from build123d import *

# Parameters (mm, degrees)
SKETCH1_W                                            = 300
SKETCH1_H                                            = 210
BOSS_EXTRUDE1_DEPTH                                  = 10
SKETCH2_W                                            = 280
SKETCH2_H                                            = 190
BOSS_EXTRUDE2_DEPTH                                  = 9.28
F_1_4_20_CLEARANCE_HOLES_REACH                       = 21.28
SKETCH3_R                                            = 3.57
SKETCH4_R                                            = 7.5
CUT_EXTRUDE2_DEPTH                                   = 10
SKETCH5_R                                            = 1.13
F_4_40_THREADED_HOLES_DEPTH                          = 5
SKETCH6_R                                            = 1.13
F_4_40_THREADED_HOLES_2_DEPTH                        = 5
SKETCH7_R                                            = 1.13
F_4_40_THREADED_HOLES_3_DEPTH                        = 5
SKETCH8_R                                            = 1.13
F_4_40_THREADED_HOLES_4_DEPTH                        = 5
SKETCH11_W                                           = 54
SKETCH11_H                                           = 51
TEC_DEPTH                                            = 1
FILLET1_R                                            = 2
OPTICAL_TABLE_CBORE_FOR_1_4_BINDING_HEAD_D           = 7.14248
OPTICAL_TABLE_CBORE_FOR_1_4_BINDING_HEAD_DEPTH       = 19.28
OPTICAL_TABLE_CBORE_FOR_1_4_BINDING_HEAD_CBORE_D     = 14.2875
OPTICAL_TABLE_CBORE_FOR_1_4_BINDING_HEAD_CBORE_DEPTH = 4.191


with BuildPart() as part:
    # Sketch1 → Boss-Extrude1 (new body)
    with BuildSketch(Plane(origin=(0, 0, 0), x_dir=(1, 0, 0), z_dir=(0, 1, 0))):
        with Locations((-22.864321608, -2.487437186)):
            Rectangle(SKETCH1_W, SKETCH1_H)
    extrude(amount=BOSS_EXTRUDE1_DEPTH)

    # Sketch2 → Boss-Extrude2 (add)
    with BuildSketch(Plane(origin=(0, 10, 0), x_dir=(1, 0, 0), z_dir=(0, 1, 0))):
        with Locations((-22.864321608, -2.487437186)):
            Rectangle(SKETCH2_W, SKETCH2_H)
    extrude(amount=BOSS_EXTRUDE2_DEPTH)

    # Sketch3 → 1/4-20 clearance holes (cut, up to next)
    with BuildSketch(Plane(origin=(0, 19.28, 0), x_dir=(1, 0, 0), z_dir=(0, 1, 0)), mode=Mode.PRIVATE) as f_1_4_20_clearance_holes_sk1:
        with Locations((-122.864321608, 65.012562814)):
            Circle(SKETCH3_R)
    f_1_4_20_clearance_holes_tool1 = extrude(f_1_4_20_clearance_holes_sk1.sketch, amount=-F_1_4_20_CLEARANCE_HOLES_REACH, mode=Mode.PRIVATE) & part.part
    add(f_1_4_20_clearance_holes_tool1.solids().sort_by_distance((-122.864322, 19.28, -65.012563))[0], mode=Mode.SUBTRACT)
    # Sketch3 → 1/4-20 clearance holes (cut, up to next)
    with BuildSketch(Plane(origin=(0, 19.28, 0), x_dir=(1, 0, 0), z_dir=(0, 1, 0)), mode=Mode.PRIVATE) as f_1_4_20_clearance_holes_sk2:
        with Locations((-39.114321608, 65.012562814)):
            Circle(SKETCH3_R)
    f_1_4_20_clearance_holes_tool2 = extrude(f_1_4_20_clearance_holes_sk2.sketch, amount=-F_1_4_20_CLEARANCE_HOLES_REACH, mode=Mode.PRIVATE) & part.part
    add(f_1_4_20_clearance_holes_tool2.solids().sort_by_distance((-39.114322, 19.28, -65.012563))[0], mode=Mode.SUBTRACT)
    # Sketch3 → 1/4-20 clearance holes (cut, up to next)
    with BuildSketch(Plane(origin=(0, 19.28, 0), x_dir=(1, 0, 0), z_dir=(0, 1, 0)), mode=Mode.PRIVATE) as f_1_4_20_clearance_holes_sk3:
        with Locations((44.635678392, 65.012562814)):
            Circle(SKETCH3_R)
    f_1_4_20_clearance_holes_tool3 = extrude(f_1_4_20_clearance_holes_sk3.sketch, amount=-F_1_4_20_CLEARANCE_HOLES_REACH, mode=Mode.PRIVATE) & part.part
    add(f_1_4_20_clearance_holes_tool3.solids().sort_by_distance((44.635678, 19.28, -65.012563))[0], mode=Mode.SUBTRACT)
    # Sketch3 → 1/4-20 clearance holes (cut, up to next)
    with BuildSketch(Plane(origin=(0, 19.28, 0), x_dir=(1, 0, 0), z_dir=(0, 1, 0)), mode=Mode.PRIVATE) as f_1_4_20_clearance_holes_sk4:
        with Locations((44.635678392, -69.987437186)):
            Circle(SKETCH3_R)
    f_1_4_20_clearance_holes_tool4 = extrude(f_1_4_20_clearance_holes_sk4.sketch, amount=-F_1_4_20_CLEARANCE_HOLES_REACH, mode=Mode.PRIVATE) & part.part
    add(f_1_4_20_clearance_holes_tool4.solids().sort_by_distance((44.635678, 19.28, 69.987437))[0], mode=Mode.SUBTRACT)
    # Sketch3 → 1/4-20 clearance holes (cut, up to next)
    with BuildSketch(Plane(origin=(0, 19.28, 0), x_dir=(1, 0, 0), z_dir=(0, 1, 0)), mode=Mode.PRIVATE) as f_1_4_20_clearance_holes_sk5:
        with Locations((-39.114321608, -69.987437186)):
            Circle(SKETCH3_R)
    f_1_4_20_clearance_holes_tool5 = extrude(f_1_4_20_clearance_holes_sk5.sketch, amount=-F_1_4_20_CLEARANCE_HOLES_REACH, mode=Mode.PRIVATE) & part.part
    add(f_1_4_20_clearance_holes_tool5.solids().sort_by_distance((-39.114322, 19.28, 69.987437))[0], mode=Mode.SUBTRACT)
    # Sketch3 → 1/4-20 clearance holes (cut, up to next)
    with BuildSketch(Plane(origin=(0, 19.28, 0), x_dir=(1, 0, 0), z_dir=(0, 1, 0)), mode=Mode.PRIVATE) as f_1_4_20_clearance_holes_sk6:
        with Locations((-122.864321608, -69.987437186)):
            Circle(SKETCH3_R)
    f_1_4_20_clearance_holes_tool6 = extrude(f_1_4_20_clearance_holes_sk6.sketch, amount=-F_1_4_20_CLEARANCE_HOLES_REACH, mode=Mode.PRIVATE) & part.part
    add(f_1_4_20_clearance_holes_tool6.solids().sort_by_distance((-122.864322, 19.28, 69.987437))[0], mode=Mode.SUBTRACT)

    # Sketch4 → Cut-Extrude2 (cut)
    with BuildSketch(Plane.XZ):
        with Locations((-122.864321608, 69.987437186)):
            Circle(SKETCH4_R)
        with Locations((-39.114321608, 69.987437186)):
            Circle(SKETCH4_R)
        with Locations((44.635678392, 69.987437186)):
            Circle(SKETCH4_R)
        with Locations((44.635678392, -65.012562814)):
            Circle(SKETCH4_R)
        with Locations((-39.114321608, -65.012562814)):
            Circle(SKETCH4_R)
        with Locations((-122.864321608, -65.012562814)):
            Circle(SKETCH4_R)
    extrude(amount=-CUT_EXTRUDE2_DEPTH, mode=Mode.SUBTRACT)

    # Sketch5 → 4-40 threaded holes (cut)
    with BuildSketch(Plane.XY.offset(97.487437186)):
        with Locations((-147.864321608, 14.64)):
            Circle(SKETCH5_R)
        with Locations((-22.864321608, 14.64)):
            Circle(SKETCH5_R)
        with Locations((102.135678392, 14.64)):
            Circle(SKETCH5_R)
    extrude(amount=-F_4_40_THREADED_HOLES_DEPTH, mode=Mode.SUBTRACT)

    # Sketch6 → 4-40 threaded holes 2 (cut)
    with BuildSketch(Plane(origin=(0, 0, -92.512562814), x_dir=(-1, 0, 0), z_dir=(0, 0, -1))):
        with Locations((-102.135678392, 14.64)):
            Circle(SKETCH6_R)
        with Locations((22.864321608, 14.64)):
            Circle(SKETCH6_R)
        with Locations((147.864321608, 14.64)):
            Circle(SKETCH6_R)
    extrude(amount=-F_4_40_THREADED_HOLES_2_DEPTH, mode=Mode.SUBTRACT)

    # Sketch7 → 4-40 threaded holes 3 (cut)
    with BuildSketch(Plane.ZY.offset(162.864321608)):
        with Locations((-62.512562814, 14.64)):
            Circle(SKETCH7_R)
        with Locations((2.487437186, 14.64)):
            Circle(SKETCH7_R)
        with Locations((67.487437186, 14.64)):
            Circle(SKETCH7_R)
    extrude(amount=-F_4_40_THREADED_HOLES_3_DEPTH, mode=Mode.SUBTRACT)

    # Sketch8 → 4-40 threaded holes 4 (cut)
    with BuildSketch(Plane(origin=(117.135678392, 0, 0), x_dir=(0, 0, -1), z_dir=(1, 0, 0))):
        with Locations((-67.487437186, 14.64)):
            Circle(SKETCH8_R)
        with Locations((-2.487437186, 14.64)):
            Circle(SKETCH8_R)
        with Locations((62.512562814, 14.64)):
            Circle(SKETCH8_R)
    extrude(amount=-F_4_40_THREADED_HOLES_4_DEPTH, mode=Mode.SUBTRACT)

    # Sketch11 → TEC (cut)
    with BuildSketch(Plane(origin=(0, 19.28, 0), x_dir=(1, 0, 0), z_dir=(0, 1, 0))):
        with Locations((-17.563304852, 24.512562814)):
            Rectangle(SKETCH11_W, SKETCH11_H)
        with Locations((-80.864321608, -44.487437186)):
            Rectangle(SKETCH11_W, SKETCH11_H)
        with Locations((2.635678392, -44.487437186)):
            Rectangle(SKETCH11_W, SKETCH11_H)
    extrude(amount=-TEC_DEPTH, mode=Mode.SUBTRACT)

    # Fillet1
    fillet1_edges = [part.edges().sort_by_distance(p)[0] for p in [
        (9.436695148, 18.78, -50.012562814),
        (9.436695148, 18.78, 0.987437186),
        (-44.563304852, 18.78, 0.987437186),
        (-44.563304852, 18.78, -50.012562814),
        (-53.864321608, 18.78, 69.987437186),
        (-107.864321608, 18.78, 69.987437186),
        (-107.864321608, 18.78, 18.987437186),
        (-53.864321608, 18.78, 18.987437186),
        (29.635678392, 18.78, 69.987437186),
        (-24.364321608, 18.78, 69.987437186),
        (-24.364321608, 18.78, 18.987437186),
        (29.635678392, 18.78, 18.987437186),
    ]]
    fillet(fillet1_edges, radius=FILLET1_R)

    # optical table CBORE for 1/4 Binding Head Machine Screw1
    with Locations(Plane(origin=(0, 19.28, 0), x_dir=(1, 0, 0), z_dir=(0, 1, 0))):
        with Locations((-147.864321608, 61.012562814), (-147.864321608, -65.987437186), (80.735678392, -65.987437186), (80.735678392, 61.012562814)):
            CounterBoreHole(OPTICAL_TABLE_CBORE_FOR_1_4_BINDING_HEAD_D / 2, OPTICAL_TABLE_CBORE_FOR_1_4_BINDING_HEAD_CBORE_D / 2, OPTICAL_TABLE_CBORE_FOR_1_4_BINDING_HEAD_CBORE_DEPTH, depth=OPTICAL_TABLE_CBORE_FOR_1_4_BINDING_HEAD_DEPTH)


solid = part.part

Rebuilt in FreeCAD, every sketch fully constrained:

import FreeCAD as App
import Part
import Sketcher
from FreeCAD import Vector


def edges_at(feature, points):
    """Names of the edges that pass closest to the given points."""
    edges = feature.Shape.Edges
    near = lambda p: min(range(len(edges)), key=lambda i: edges[i].distToShape(Part.Vertex(*p))[0])
    return sorted({f"Edge{near(p) + 1}" for p in points})


def add_polygon(sketch, points):
    """Adds a closed chain of lines whose ends are joined by coincident constraints."""
    first, n = sketch.GeometryCount, len(points)
    for a, b in zip(points, points[1:] + points[:1]):
        sketch.addGeometry(Part.LineSegment(App.Vector(*a, 0), App.Vector(*b, 0)), False)
    for i in range(n):
        sketch.addConstraint(Sketcher.Constraint("Coincident", first + i, 2, first + (i + 1) % n, 1))

doc = App.newDocument("Part")
params = doc.addObject("Spreadsheet::Sheet", "Params")
for row, (alias, value) in enumerate([
    ("sketch1_width", "300 mm"),
    ("sketch1_height", "210 mm"),
    ("pad1_length", "10 mm"),
    ("sketch2_width", "280 mm"),
    ("sketch2_height", "190 mm"),
    ("pad2_length", "9.28 mm"),
    ("sketch3_diameter", "7.14 mm"),
    ("sketch4_diameter", "7.14 mm"),
    ("sketch5_diameter", "7.14 mm"),
    ("sketch6_diameter", "7.14 mm"),
    ("sketch7_diameter", "7.14 mm"),
    ("sketch8_diameter", "7.14 mm"),
    ("sketch9_diameter", "15 mm"),
    ("pocket7_length", "10 mm"),
    ("sketch10_diameter", "2.26 mm"),
    ("pocket8_length", "5 mm"),
    ("sketch11_diameter", "2.26 mm"),
    ("pocket9_length", "5 mm"),
    ("sketch12_diameter", "2.26 mm"),
    ("pocket10_length", "5 mm"),
    ("sketch13_diameter", "2.26 mm"),
    ("pocket11_length", "5 mm"),
    ("sketch14_width", "54 mm"),
    ("sketch14_height", "51 mm"),
    ("pocket12_length", "1 mm"),
    ("fillet_radius", "2 mm"),
    ("hole_diameter", "7.14248 mm"),
    ("hole_depth", "19.28 mm"),
    ("hole_cbore_diameter", "14.2875 mm"),
    ("hole_cbore_depth", "4.191 mm"),
], start=1):
    params.set(f"A{row}", alias)
    params.set(f"B{row}", "=" + value)
    params.setAlias(f"B{row}", alias)

body = doc.addObject("PartDesign::Body", "Body")

# Sketch on XZ plane
sketch1 = body.newObject("Sketcher::SketchObject", "Sketch")
sketch1.AttachmentSupport = (doc.getObject("XZ_Plane"), [""])
sketch1.MapMode = "FlatFace"
add_polygon(sketch1, [(-173, -103), (-173, 107), (127, 107), (127, -103)])  # lines 0-3
sketch1.addConstraint(Sketcher.Constraint("Vertical", 0))
sketch1.addConstraint(Sketcher.Constraint("Horizontal", 1))
sketch1.addConstraint(Sketcher.Constraint("Vertical", 2))
sketch1.addConstraint(Sketcher.Constraint("Horizontal", 3))
sketch1.addConstraint(Sketcher.Constraint("DistanceX", 1, 1, 1, 2, 300.0))
sketch1.addConstraint(Sketcher.Constraint("DistanceY", 0, 1, 0, 2, 210.0))
sketch1.addConstraint(Sketcher.Constraint("DistanceX", 0, 2, -1, 1, 172.864322))
sketch1.addConstraint(Sketcher.Constraint("DistanceY", -1, 1, 0, 2, 107.487437))
sketch1.setExpression("Constraints[8]", "Params.sketch1_width")
sketch1.setExpression("Constraints[9]", "Params.sketch1_height")
pad1 = body.newObject("PartDesign::Pad", "Pad")
pad1.Profile = sketch1
pad1.setExpression("Length", "Params.pad1_length")
pad1.Reversed = True

# Sketch on XZ plane
sketch2 = body.newObject("Sketcher::SketchObject", "Sketch001")
sketch2.AttachmentSupport = (doc.getObject("XZ_Plane"), [""])
sketch2.MapMode = "FlatFace"
sketch2.AttachmentOffset = App.Placement(Vector(0, 0, -10), App.Rotation())
add_polygon(sketch2, [(-163, -93), (-163, 97), (117, 97), (117, -93)])  # lines 0-3
sketch2.addConstraint(Sketcher.Constraint("Vertical", 0))
sketch2.addConstraint(Sketcher.Constraint("Horizontal", 1))
sketch2.addConstraint(Sketcher.Constraint("Vertical", 2))
sketch2.addConstraint(Sketcher.Constraint("Horizontal", 3))
sketch2.addConstraint(Sketcher.Constraint("DistanceX", 1, 1, 1, 2, 280.0))
sketch2.addConstraint(Sketcher.Constraint("DistanceY", 0, 1, 0, 2, 190.0))
sketch2.addConstraint(Sketcher.Constraint("DistanceX", 0, 2, -1, 1, 162.864322))
sketch2.addConstraint(Sketcher.Constraint("DistanceY", -1, 1, 0, 2, 97.487437))
sketch2.setExpression("Constraints[8]", "Params.sketch2_width")
sketch2.setExpression("Constraints[9]", "Params.sketch2_height")
pad2 = body.newObject("PartDesign::Pad", "Pad001")
pad2.Profile = sketch2
pad2.setExpression("Length", "Params.pad2_length")
pad2.Reversed = True

# Sketch on XZ plane
sketch3 = body.newObject("Sketcher::SketchObject", "Sketch002")
sketch3.AttachmentSupport = (doc.getObject("XZ_Plane"), [""])
sketch3.MapMode = "FlatFace"
sketch3.AttachmentOffset = App.Placement(Vector(0, 0, -19.28), App.Rotation())
sketch3.addGeometry(Part.Circle(Vector(-122.9, -65, 0), Vector(0, 0, 1), 3.6), False)
sketch3.addConstraint(Sketcher.Constraint("Diameter", 0, 7.14))
sketch3.addConstraint(Sketcher.Constraint("DistanceX", 0, 3, -1, 1, 122.864322))
sketch3.addConstraint(Sketcher.Constraint("DistanceY", 0, 3, -1, 1, 65.012563))
sketch3.setExpression("Constraints[0]", "Params.sketch3_diameter")
pocket1 = body.newObject("PartDesign::Pocket", "Pocket")
pocket1.Profile = sketch3
pocket1.Type = "UpToFirst"
pocket1.Reversed = True

# Sketch on XZ plane
sketch4 = body.newObject("Sketcher::SketchObject", "Sketch003")
sketch4.AttachmentSupport = (doc.getObject("XZ_Plane"), [""])
sketch4.MapMode = "FlatFace"
sketch4.AttachmentOffset = App.Placement(Vector(0, 0, -19.28), App.Rotation())
sketch4.addGeometry(Part.Circle(Vector(-39.1, -65, 0), Vector(0, 0, 1), 3.6), False)
sketch4.addConstraint(Sketcher.Constraint("Diameter", 0, 7.14))
sketch4.addConstraint(Sketcher.Constraint("DistanceX", 0, 3, -1, 1, 39.114322))
sketch4.addConstraint(Sketcher.Constraint("DistanceY", 0, 3, -1, 1, 65.012563))
sketch4.setExpression("Constraints[0]", "Params.sketch4_diameter")
pocket2 = body.newObject("PartDesign::Pocket", "Pocket001")
pocket2.Profile = sketch4
pocket2.Type = "UpToFirst"
pocket2.Reversed = True

# Sketch on XZ plane
sketch5 = body.newObject("Sketcher::SketchObject", "Sketch004")
sketch5.AttachmentSupport = (doc.getObject("XZ_Plane"), [""])
sketch5.MapMode = "FlatFace"
sketch5.AttachmentOffset = App.Placement(Vector(0, 0, -19.28), App.Rotation())
sketch5.addGeometry(Part.Circle(Vector(44.6, -65, 0), Vector(0, 0, 1), 3.6), False)
sketch5.addConstraint(Sketcher.Constraint("Diameter", 0, 7.14))
sketch5.addConstraint(Sketcher.Constraint("DistanceX", -1, 1, 0, 3, 44.635678))
sketch5.addConstraint(Sketcher.Constraint("DistanceY", 0, 3, -1, 1, 65.012563))
sketch5.setExpression("Constraints[0]", "Params.sketch5_diameter")
pocket3 = body.newObject("PartDesign::Pocket", "Pocket002")
pocket3.Profile = sketch5
pocket3.Type = "UpToFirst"
pocket3.Reversed = True

# Sketch on XZ plane
sketch6 = body.newObject("Sketcher::SketchObject", "Sketch005")
sketch6.AttachmentSupport = (doc.getObject("XZ_Plane"), [""])
sketch6.MapMode = "FlatFace"
sketch6.AttachmentOffset = App.Placement(Vector(0, 0, -19.28), App.Rotation())
sketch6.addGeometry(Part.Circle(Vector(44.6, 70, 0), Vector(0, 0, 1), 3.6), False)
sketch6.addConstraint(Sketcher.Constraint("Diameter", 0, 7.14))
sketch6.addConstraint(Sketcher.Constraint("DistanceX", -1, 1, 0, 3, 44.635678))
sketch6.addConstraint(Sketcher.Constraint("DistanceY", -1, 1, 0, 3, 69.987437))
sketch6.setExpression("Constraints[0]", "Params.sketch6_diameter")
pocket4 = body.newObject("PartDesign::Pocket", "Pocket003")
pocket4.Profile = sketch6
pocket4.Type = "UpToFirst"
pocket4.Reversed = True

# Sketch on XZ plane
sketch7 = body.newObject("Sketcher::SketchObject", "Sketch006")
sketch7.AttachmentSupport = (doc.getObject("XZ_Plane"), [""])
sketch7.MapMode = "FlatFace"
sketch7.AttachmentOffset = App.Placement(Vector(0, 0, -19.28), App.Rotation())
sketch7.addGeometry(Part.Circle(Vector(-39.1, 70, 0), Vector(0, 0, 1), 3.6), False)
sketch7.addConstraint(Sketcher.Constraint("Diameter", 0, 7.14))
sketch7.addConstraint(Sketcher.Constraint("DistanceX", 0, 3, -1, 1, 39.114322))
sketch7.addConstraint(Sketcher.Constraint("DistanceY", -1, 1, 0, 3, 69.987437))
sketch7.setExpression("Constraints[0]", "Params.sketch7_diameter")
pocket5 = body.newObject("PartDesign::Pocket", "Pocket004")
pocket5.Profile = sketch7
pocket5.Type = "UpToFirst"
pocket5.Reversed = True

# Sketch on XZ plane
sketch8 = body.newObject("Sketcher::SketchObject", "Sketch007")
sketch8.AttachmentSupport = (doc.getObject("XZ_Plane"), [""])
sketch8.MapMode = "FlatFace"
sketch8.AttachmentOffset = App.Placement(Vector(0, 0, -19.28), App.Rotation())
sketch8.addGeometry(Part.Circle(Vector(-122.9, 70, 0), Vector(0, 0, 1), 3.6), False)
sketch8.addConstraint(Sketcher.Constraint("Diameter", 0, 7.14))
sketch8.addConstraint(Sketcher.Constraint("DistanceX", 0, 3, -1, 1, 122.864322))
sketch8.addConstraint(Sketcher.Constraint("DistanceY", -1, 1, 0, 3, 69.987437))
sketch8.setExpression("Constraints[0]", "Params.sketch8_diameter")
pocket6 = body.newObject("PartDesign::Pocket", "Pocket005")
pocket6.Profile = sketch8
pocket6.Type = "UpToFirst"
pocket6.Reversed = True

# Sketch on XZ plane
sketch9 = body.newObject("Sketcher::SketchObject", "Sketch008")
sketch9.AttachmentSupport = (doc.getObject("XZ_Plane"), [""])
sketch9.MapMode = "FlatFace"
sketch9.addGeometry(Part.Circle(Vector(-123, 70, 0), Vector(0, 0, 1), 8), False)
sketch9.addGeometry(Part.Circle(Vector(-39, 70, 0), Vector(0, 0, 1), 8), False)
sketch9.addGeometry(Part.Circle(Vector(45, 70, 0), Vector(0, 0, 1), 8), False)
sketch9.addGeometry(Part.Circle(Vector(45, -65, 0), Vector(0, 0, 1), 8), False)
sketch9.addGeometry(Part.Circle(Vector(-39, -65, 0), Vector(0, 0, 1), 8), False)
sketch9.addGeometry(Part.Circle(Vector(-123, -65, 0), Vector(0, 0, 1), 8), False)
sketch9.addConstraint(Sketcher.Constraint("Equal", 0, 1))
sketch9.addConstraint(Sketcher.Constraint("Equal", 1, 2))
sketch9.addConstraint(Sketcher.Constraint("Equal", 2, 3))
sketch9.addConstraint(Sketcher.Constraint("Equal", 3, 4))
sketch9.addConstraint(Sketcher.Constraint("Equal", 4, 5))
sketch9.addConstraint(Sketcher.Constraint("Horizontal", 0, 3, 1, 3))
sketch9.addConstraint(Sketcher.Constraint("Horizontal", 1, 3, 2, 3))
sketch9.addConstraint(Sketcher.Constraint("Horizontal", 3, 3, 4, 3))
sketch9.addConstraint(Sketcher.Constraint("Horizontal", 4, 3, 5, 3))
sketch9.addConstraint(Sketcher.Constraint("Vertical", 2, 3, 3, 3))
sketch9.addConstraint(Sketcher.Constraint("Vertical", 1, 3, 4, 3))
sketch9.addConstraint(Sketcher.Constraint("Vertical", 0, 3, 5, 3))
sketch9.addConstraint(Sketcher.Constraint("Diameter", 0, 15.0))
sketch9.addConstraint(Sketcher.Constraint("DistanceY", 3, 3, 2, 3, 135.0))
sketch9.addConstraint(Sketcher.Constraint("DistanceX", 0, 3, 2, 3, 167.5))
sketch9.addConstraint(Sketcher.Constraint("DistanceX", 0, 3, 1, 3, 83.75))
sketch9.addConstraint(Sketcher.Constraint("DistanceX", 0, 3, -1, 1, 122.864322))
sketch9.addConstraint(Sketcher.Constraint("DistanceY", -1, 1, 0, 3, 69.987437))
sketch9.setExpression("Constraints[12]", "Params.sketch9_diameter")
pocket7 = body.newObject("PartDesign::Pocket", "Pocket006")
pocket7.Profile = sketch9
pocket7.setExpression("Length", "Params.pocket7_length")

# Sketch on XY plane
sketch10 = body.newObject("Sketcher::SketchObject", "Sketch009")
sketch10.AttachmentSupport = (doc.getObject("XY_Plane"), [""])
sketch10.MapMode = "FlatFace"
sketch10.AttachmentOffset = App.Placement(Vector(0, 0, 97.487437), App.Rotation())
sketch10.addGeometry(Part.Circle(Vector(-147.9, 14.6, 0), Vector(0, 0, 1), 1.1), False)
sketch10.addGeometry(Part.Circle(Vector(-22.9, 14.6, 0), Vector(0, 0, 1), 1.1), False)
sketch10.addGeometry(Part.Circle(Vector(102.1, 14.6, 0), Vector(0, 0, 1), 1.1), False)
sketch10.addConstraint(Sketcher.Constraint("Equal", 0, 1))
sketch10.addConstraint(Sketcher.Constraint("Equal", 1, 2))
sketch10.addConstraint(Sketcher.Constraint("Horizontal", 0, 3, 1, 3))
sketch10.addConstraint(Sketcher.Constraint("Horizontal", 1, 3, 2, 3))
sketch10.addConstraint(Sketcher.Constraint("Diameter", 0, 2.26))
sketch10.addConstraint(Sketcher.Constraint("DistanceX", 0, 3, 1, 3, 125.0))
sketch10.addConstraint(Sketcher.Constraint("DistanceX", 1, 3, 2, 3, 125.0))
sketch10.addConstraint(Sketcher.Constraint("DistanceY", -1, 1, 0, 3, 14.64))
sketch10.addConstraint(Sketcher.Constraint("DistanceX", 0, 3, -1, 1, 147.864322))
sketch10.setExpression("Constraints[4]", "Params.sketch10_diameter")
pocket8 = body.newObject("PartDesign::Pocket", "Pocket007")
pocket8.Profile = sketch10
pocket8.setExpression("Length", "Params.pocket8_length")

# Sketch on XY plane
sketch11 = body.newObject("Sketcher::SketchObject", "Sketch010")
sketch11.AttachmentSupport = (doc.getObject("XY_Plane"), [""])
sketch11.MapMode = "FlatFace"
sketch11.AttachmentOffset = App.Placement(Vector(0, 0, -92.512563), App.Rotation())
sketch11.addGeometry(Part.Circle(Vector(102.1, 14.6, 0), Vector(0, 0, 1), 1.1), False)
sketch11.addGeometry(Part.Circle(Vector(-22.9, 14.6, 0), Vector(0, 0, 1), 1.1), False)
sketch11.addGeometry(Part.Circle(Vector(-147.9, 14.6, 0), Vector(0, 0, 1), 1.1), False)
sketch11.addConstraint(Sketcher.Constraint("Equal", 0, 1))
sketch11.addConstraint(Sketcher.Constraint("Equal", 1, 2))
sketch11.addConstraint(Sketcher.Constraint("Horizontal", 0, 3, 1, 3))
sketch11.addConstraint(Sketcher.Constraint("Horizontal", 1, 3, 2, 3))
sketch11.addConstraint(Sketcher.Constraint("Diameter", 0, 2.26))
sketch11.addConstraint(Sketcher.Constraint("DistanceX", 1, 3, 0, 3, 125.0))
sketch11.addConstraint(Sketcher.Constraint("DistanceX", 2, 3, 1, 3, 125.0))
sketch11.addConstraint(Sketcher.Constraint("DistanceY", -1, 1, 0, 3, 14.64))
sketch11.addConstraint(Sketcher.Constraint("DistanceX", -1, 1, 0, 3, 102.135678))
sketch11.setExpression("Constraints[4]", "Params.sketch11_diameter")
pocket9 = body.newObject("PartDesign::Pocket", "Pocket008")
pocket9.Profile = sketch11
pocket9.setExpression("Length", "Params.pocket9_length")
pocket9.Reversed = True

# Sketch on YZ plane
sketch12 = body.newObject("Sketcher::SketchObject", "Sketch011")
sketch12.AttachmentSupport = (doc.getObject("YZ_Plane"), [""])
sketch12.MapMode = "FlatFace"
sketch12.AttachmentOffset = App.Placement(Vector(0, 0, -162.864322), App.Rotation())
sketch12.addGeometry(Part.Circle(Vector(14.6, -62.5, 0), Vector(0, 0, 1), 1.1), False)
sketch12.addGeometry(Part.Circle(Vector(14.6, 2.5, 0), Vector(0, 0, 1), 1.1), False)
sketch12.addGeometry(Part.Circle(Vector(14.6, 67.5, 0), Vector(0, 0, 1), 1.1), False)
sketch12.addConstraint(Sketcher.Constraint("Equal", 0, 1))
sketch12.addConstraint(Sketcher.Constraint("Equal", 1, 2))
sketch12.addConstraint(Sketcher.Constraint("Vertical", 0, 3, 1, 3))
sketch12.addConstraint(Sketcher.Constraint("Vertical", 1, 3, 2, 3))
sketch12.addConstraint(Sketcher.Constraint("Diameter", 0, 2.26))
sketch12.addConstraint(Sketcher.Constraint("DistanceY", 0, 3, 1, 3, 65.0))
sketch12.addConstraint(Sketcher.Constraint("DistanceY", 1, 3, 2, 3, 65.0))
sketch12.addConstraint(Sketcher.Constraint("DistanceX", -1, 1, 0, 3, 14.64))
sketch12.addConstraint(Sketcher.Constraint("DistanceY", 0, 3, -1, 1, 62.512563))
sketch12.setExpression("Constraints[4]", "Params.sketch12_diameter")
pocket10 = body.newObject("PartDesign::Pocket", "Pocket009")
pocket10.Profile = sketch12
pocket10.setExpression("Length", "Params.pocket10_length")
pocket10.Reversed = True

# Sketch on YZ plane
sketch13 = body.newObject("Sketcher::SketchObject", "Sketch012")
sketch13.AttachmentSupport = (doc.getObject("YZ_Plane"), [""])
sketch13.MapMode = "FlatFace"
sketch13.AttachmentOffset = App.Placement(Vector(0, 0, 117.135678), App.Rotation())
sketch13.addGeometry(Part.Circle(Vector(14.6, 67.5, 0), Vector(0, 0, 1), 1.1), False)
sketch13.addGeometry(Part.Circle(Vector(14.6, 2.5, 0), Vector(0, 0, 1), 1.1), False)
sketch13.addGeometry(Part.Circle(Vector(14.6, -62.5, 0), Vector(0, 0, 1), 1.1), False)
sketch13.addConstraint(Sketcher.Constraint("Equal", 0, 1))
sketch13.addConstraint(Sketcher.Constraint("Equal", 1, 2))
sketch13.addConstraint(Sketcher.Constraint("Vertical", 0, 3, 1, 3))
sketch13.addConstraint(Sketcher.Constraint("Vertical", 1, 3, 2, 3))
sketch13.addConstraint(Sketcher.Constraint("Diameter", 0, 2.26))
sketch13.addConstraint(Sketcher.Constraint("DistanceY", 1, 3, 0, 3, 65.0))
sketch13.addConstraint(Sketcher.Constraint("DistanceY", 2, 3, 1, 3, 65.0))
sketch13.addConstraint(Sketcher.Constraint("DistanceX", -1, 1, 0, 3, 14.64))
sketch13.addConstraint(Sketcher.Constraint("DistanceY", -1, 1, 0, 3, 67.487437))
sketch13.setExpression("Constraints[4]", "Params.sketch13_diameter")
pocket11 = body.newObject("PartDesign::Pocket", "Pocket010")
pocket11.Profile = sketch13
pocket11.setExpression("Length", "Params.pocket11_length")

# Sketch on XZ plane
sketch14 = body.newObject("Sketcher::SketchObject", "Sketch013")
sketch14.AttachmentSupport = (doc.getObject("XZ_Plane"), [""])
sketch14.MapMode = "FlatFace"
sketch14.AttachmentOffset = App.Placement(Vector(0, 0, -19.28), App.Rotation())
add_polygon(sketch14, [(-45, -50), (-45, 1), (9, 1), (9, -50)])  # lines 0-3
add_polygon(sketch14, [(-108, 19), (-108, 70), (-54, 70), (-54, 19)])  # lines 4-7
add_polygon(sketch14, [(-24, 19), (-24, 70), (30, 70), (30, 19)])  # lines 8-11
sketch14.addConstraint(Sketcher.Constraint("Vertical", 0))
sketch14.addConstraint(Sketcher.Constraint("Horizontal", 1))
sketch14.addConstraint(Sketcher.Constraint("Vertical", 2))
sketch14.addConstraint(Sketcher.Constraint("Horizontal", 3))
sketch14.addConstraint(Sketcher.Constraint("Vertical", 4))
sketch14.addConstraint(Sketcher.Constraint("Horizontal", 5))
sketch14.addConstraint(Sketcher.Constraint("Vertical", 6))
sketch14.addConstraint(Sketcher.Constraint("Horizontal", 7))
sketch14.addConstraint(Sketcher.Constraint("Vertical", 8))
sketch14.addConstraint(Sketcher.Constraint("Horizontal", 9))
sketch14.addConstraint(Sketcher.Constraint("Vertical", 10))
sketch14.addConstraint(Sketcher.Constraint("Horizontal", 11))
sketch14.addConstraint(Sketcher.Constraint("Horizontal", 5, 2, 8, 2))
sketch14.addConstraint(Sketcher.Constraint("Horizontal", 7, 2, 10, 2))
sketch14.addConstraint(Sketcher.Constraint("Equal", 3, 5))
sketch14.addConstraint(Sketcher.Constraint("Equal", 7, 9))
sketch14.addConstraint(Sketcher.Constraint("Equal", 2, 4))
sketch14.addConstraint(Sketcher.Constraint("DistanceX", 1, 1, 1, 2, 54.0))
sketch14.addConstraint(Sketcher.Constraint("DistanceY", 0, 1, 0, 2, 51.0))
sketch14.addConstraint(Sketcher.Constraint("DistanceY", 0, 2, 4, 2, 69.0))
sketch14.addConstraint(Sketcher.Constraint("DistanceX", 5, 2, 8, 2, 29.5))
sketch14.addConstraint(Sketcher.Constraint("DistanceX", 4, 2, -1, 1, 107.864322))
sketch14.addConstraint(Sketcher.Constraint("DistanceX", 0, 2, -1, 1, 44.563305))
sketch14.addConstraint(Sketcher.Constraint("DistanceY", -1, 1, 0, 2, 0.987437))
sketch14.setExpression("Constraints[29]", "Params.sketch14_width")
sketch14.setExpression("Constraints[30]", "Params.sketch14_height")
pocket12 = body.newObject("PartDesign::Pocket", "Pocket011")
pocket12.Profile = sketch14
pocket12.setExpression("Length", "Params.pocket12_length")
pocket12.Reversed = True
doc.recompute()

fillet = body.newObject("PartDesign::Fillet", "Fillet")
fillet.Base = (pocket12, edges_at(pocket12, [
    (9.437, 18.78, -50.013),
    (9.437, 18.78, 0.987),
    (-44.563, 18.78, 0.987),
    (-44.563, 18.78, -50.013),
    (-53.864, 18.78, 69.987),
    (-107.864, 18.78, 69.987),
    (-107.864, 18.78, 18.987),
    (-53.864, 18.78, 18.987),
    (29.636, 18.78, 69.987),
    (-24.364, 18.78, 69.987),
    (-24.364, 18.78, 18.987),
    (29.636, 18.78, 18.987),
]))
fillet.setExpression("Radius", "Params.fillet_radius")

# Sketch on XZ plane
sketch15 = body.newObject("Sketcher::SketchObject", "Sketch014")
sketch15.AttachmentSupport = (doc.getObject("XZ_Plane"), [""])
sketch15.MapMode = "FlatFace"
sketch15.AttachmentOffset = App.Placement(Vector(0, 0, -19.28), App.Rotation())
sketch15.addGeometry(Part.Circle(Vector(-147.9, -61, 0), Vector(0, 0, 1), 3.6), False)
sketch15.addGeometry(Part.Circle(Vector(-147.9, 66, 0), Vector(0, 0, 1), 3.6), False)
sketch15.addGeometry(Part.Circle(Vector(80.7, 66, 0), Vector(0, 0, 1), 3.6), False)
sketch15.addGeometry(Part.Circle(Vector(80.7, -61, 0), Vector(0, 0, 1), 3.6), False)
sketch15.addConstraint(Sketcher.Constraint("Equal", 0, 1))
sketch15.addConstraint(Sketcher.Constraint("Equal", 1, 2))
sketch15.addConstraint(Sketcher.Constraint("Equal", 2, 3))
sketch15.addConstraint(Sketcher.Constraint("Horizontal", 1, 3, 2, 3))
sketch15.addConstraint(Sketcher.Constraint("Horizontal", 0, 3, 3, 3))
sketch15.addConstraint(Sketcher.Constraint("Vertical", 0, 3, 1, 3))
sketch15.addConstraint(Sketcher.Constraint("Vertical", 2, 3, 3, 3))
sketch15.addConstraint(Sketcher.Constraint("DistanceY", 0, 3, 1, 3, 127.0))
sketch15.addConstraint(Sketcher.Constraint("DistanceX", 1, 3, 2, 3, 228.6))
sketch15.addConstraint(Sketcher.Constraint("Diameter", 0, 7.14248))
sketch15.addConstraint(Sketcher.Constraint("DistanceX", 0, 3, -1, 1, 147.864322))
sketch15.addConstraint(Sketcher.Constraint("DistanceY", 0, 3, -1, 1, 61.012563))
doc.recompute()
hole = body.newObject("PartDesign::Hole", "Hole")
hole.Profile = sketch15
hole.ThreadType = "None"
hole.setExpression("Diameter", "Params.hole_diameter")
hole.DepthType = "Dimension"
hole.setExpression("Depth", "Params.hole_depth")
hole.DrillPoint = "Flat"
hole.HoleCutType = "Counterbore"
hole.setExpression("HoleCutDiameter", "Params.hole_cbore_diameter")
hole.setExpression("HoleCutDepth", "Params.hole_cbore_depth")
hole.Reversed = True

doc.recompute()
